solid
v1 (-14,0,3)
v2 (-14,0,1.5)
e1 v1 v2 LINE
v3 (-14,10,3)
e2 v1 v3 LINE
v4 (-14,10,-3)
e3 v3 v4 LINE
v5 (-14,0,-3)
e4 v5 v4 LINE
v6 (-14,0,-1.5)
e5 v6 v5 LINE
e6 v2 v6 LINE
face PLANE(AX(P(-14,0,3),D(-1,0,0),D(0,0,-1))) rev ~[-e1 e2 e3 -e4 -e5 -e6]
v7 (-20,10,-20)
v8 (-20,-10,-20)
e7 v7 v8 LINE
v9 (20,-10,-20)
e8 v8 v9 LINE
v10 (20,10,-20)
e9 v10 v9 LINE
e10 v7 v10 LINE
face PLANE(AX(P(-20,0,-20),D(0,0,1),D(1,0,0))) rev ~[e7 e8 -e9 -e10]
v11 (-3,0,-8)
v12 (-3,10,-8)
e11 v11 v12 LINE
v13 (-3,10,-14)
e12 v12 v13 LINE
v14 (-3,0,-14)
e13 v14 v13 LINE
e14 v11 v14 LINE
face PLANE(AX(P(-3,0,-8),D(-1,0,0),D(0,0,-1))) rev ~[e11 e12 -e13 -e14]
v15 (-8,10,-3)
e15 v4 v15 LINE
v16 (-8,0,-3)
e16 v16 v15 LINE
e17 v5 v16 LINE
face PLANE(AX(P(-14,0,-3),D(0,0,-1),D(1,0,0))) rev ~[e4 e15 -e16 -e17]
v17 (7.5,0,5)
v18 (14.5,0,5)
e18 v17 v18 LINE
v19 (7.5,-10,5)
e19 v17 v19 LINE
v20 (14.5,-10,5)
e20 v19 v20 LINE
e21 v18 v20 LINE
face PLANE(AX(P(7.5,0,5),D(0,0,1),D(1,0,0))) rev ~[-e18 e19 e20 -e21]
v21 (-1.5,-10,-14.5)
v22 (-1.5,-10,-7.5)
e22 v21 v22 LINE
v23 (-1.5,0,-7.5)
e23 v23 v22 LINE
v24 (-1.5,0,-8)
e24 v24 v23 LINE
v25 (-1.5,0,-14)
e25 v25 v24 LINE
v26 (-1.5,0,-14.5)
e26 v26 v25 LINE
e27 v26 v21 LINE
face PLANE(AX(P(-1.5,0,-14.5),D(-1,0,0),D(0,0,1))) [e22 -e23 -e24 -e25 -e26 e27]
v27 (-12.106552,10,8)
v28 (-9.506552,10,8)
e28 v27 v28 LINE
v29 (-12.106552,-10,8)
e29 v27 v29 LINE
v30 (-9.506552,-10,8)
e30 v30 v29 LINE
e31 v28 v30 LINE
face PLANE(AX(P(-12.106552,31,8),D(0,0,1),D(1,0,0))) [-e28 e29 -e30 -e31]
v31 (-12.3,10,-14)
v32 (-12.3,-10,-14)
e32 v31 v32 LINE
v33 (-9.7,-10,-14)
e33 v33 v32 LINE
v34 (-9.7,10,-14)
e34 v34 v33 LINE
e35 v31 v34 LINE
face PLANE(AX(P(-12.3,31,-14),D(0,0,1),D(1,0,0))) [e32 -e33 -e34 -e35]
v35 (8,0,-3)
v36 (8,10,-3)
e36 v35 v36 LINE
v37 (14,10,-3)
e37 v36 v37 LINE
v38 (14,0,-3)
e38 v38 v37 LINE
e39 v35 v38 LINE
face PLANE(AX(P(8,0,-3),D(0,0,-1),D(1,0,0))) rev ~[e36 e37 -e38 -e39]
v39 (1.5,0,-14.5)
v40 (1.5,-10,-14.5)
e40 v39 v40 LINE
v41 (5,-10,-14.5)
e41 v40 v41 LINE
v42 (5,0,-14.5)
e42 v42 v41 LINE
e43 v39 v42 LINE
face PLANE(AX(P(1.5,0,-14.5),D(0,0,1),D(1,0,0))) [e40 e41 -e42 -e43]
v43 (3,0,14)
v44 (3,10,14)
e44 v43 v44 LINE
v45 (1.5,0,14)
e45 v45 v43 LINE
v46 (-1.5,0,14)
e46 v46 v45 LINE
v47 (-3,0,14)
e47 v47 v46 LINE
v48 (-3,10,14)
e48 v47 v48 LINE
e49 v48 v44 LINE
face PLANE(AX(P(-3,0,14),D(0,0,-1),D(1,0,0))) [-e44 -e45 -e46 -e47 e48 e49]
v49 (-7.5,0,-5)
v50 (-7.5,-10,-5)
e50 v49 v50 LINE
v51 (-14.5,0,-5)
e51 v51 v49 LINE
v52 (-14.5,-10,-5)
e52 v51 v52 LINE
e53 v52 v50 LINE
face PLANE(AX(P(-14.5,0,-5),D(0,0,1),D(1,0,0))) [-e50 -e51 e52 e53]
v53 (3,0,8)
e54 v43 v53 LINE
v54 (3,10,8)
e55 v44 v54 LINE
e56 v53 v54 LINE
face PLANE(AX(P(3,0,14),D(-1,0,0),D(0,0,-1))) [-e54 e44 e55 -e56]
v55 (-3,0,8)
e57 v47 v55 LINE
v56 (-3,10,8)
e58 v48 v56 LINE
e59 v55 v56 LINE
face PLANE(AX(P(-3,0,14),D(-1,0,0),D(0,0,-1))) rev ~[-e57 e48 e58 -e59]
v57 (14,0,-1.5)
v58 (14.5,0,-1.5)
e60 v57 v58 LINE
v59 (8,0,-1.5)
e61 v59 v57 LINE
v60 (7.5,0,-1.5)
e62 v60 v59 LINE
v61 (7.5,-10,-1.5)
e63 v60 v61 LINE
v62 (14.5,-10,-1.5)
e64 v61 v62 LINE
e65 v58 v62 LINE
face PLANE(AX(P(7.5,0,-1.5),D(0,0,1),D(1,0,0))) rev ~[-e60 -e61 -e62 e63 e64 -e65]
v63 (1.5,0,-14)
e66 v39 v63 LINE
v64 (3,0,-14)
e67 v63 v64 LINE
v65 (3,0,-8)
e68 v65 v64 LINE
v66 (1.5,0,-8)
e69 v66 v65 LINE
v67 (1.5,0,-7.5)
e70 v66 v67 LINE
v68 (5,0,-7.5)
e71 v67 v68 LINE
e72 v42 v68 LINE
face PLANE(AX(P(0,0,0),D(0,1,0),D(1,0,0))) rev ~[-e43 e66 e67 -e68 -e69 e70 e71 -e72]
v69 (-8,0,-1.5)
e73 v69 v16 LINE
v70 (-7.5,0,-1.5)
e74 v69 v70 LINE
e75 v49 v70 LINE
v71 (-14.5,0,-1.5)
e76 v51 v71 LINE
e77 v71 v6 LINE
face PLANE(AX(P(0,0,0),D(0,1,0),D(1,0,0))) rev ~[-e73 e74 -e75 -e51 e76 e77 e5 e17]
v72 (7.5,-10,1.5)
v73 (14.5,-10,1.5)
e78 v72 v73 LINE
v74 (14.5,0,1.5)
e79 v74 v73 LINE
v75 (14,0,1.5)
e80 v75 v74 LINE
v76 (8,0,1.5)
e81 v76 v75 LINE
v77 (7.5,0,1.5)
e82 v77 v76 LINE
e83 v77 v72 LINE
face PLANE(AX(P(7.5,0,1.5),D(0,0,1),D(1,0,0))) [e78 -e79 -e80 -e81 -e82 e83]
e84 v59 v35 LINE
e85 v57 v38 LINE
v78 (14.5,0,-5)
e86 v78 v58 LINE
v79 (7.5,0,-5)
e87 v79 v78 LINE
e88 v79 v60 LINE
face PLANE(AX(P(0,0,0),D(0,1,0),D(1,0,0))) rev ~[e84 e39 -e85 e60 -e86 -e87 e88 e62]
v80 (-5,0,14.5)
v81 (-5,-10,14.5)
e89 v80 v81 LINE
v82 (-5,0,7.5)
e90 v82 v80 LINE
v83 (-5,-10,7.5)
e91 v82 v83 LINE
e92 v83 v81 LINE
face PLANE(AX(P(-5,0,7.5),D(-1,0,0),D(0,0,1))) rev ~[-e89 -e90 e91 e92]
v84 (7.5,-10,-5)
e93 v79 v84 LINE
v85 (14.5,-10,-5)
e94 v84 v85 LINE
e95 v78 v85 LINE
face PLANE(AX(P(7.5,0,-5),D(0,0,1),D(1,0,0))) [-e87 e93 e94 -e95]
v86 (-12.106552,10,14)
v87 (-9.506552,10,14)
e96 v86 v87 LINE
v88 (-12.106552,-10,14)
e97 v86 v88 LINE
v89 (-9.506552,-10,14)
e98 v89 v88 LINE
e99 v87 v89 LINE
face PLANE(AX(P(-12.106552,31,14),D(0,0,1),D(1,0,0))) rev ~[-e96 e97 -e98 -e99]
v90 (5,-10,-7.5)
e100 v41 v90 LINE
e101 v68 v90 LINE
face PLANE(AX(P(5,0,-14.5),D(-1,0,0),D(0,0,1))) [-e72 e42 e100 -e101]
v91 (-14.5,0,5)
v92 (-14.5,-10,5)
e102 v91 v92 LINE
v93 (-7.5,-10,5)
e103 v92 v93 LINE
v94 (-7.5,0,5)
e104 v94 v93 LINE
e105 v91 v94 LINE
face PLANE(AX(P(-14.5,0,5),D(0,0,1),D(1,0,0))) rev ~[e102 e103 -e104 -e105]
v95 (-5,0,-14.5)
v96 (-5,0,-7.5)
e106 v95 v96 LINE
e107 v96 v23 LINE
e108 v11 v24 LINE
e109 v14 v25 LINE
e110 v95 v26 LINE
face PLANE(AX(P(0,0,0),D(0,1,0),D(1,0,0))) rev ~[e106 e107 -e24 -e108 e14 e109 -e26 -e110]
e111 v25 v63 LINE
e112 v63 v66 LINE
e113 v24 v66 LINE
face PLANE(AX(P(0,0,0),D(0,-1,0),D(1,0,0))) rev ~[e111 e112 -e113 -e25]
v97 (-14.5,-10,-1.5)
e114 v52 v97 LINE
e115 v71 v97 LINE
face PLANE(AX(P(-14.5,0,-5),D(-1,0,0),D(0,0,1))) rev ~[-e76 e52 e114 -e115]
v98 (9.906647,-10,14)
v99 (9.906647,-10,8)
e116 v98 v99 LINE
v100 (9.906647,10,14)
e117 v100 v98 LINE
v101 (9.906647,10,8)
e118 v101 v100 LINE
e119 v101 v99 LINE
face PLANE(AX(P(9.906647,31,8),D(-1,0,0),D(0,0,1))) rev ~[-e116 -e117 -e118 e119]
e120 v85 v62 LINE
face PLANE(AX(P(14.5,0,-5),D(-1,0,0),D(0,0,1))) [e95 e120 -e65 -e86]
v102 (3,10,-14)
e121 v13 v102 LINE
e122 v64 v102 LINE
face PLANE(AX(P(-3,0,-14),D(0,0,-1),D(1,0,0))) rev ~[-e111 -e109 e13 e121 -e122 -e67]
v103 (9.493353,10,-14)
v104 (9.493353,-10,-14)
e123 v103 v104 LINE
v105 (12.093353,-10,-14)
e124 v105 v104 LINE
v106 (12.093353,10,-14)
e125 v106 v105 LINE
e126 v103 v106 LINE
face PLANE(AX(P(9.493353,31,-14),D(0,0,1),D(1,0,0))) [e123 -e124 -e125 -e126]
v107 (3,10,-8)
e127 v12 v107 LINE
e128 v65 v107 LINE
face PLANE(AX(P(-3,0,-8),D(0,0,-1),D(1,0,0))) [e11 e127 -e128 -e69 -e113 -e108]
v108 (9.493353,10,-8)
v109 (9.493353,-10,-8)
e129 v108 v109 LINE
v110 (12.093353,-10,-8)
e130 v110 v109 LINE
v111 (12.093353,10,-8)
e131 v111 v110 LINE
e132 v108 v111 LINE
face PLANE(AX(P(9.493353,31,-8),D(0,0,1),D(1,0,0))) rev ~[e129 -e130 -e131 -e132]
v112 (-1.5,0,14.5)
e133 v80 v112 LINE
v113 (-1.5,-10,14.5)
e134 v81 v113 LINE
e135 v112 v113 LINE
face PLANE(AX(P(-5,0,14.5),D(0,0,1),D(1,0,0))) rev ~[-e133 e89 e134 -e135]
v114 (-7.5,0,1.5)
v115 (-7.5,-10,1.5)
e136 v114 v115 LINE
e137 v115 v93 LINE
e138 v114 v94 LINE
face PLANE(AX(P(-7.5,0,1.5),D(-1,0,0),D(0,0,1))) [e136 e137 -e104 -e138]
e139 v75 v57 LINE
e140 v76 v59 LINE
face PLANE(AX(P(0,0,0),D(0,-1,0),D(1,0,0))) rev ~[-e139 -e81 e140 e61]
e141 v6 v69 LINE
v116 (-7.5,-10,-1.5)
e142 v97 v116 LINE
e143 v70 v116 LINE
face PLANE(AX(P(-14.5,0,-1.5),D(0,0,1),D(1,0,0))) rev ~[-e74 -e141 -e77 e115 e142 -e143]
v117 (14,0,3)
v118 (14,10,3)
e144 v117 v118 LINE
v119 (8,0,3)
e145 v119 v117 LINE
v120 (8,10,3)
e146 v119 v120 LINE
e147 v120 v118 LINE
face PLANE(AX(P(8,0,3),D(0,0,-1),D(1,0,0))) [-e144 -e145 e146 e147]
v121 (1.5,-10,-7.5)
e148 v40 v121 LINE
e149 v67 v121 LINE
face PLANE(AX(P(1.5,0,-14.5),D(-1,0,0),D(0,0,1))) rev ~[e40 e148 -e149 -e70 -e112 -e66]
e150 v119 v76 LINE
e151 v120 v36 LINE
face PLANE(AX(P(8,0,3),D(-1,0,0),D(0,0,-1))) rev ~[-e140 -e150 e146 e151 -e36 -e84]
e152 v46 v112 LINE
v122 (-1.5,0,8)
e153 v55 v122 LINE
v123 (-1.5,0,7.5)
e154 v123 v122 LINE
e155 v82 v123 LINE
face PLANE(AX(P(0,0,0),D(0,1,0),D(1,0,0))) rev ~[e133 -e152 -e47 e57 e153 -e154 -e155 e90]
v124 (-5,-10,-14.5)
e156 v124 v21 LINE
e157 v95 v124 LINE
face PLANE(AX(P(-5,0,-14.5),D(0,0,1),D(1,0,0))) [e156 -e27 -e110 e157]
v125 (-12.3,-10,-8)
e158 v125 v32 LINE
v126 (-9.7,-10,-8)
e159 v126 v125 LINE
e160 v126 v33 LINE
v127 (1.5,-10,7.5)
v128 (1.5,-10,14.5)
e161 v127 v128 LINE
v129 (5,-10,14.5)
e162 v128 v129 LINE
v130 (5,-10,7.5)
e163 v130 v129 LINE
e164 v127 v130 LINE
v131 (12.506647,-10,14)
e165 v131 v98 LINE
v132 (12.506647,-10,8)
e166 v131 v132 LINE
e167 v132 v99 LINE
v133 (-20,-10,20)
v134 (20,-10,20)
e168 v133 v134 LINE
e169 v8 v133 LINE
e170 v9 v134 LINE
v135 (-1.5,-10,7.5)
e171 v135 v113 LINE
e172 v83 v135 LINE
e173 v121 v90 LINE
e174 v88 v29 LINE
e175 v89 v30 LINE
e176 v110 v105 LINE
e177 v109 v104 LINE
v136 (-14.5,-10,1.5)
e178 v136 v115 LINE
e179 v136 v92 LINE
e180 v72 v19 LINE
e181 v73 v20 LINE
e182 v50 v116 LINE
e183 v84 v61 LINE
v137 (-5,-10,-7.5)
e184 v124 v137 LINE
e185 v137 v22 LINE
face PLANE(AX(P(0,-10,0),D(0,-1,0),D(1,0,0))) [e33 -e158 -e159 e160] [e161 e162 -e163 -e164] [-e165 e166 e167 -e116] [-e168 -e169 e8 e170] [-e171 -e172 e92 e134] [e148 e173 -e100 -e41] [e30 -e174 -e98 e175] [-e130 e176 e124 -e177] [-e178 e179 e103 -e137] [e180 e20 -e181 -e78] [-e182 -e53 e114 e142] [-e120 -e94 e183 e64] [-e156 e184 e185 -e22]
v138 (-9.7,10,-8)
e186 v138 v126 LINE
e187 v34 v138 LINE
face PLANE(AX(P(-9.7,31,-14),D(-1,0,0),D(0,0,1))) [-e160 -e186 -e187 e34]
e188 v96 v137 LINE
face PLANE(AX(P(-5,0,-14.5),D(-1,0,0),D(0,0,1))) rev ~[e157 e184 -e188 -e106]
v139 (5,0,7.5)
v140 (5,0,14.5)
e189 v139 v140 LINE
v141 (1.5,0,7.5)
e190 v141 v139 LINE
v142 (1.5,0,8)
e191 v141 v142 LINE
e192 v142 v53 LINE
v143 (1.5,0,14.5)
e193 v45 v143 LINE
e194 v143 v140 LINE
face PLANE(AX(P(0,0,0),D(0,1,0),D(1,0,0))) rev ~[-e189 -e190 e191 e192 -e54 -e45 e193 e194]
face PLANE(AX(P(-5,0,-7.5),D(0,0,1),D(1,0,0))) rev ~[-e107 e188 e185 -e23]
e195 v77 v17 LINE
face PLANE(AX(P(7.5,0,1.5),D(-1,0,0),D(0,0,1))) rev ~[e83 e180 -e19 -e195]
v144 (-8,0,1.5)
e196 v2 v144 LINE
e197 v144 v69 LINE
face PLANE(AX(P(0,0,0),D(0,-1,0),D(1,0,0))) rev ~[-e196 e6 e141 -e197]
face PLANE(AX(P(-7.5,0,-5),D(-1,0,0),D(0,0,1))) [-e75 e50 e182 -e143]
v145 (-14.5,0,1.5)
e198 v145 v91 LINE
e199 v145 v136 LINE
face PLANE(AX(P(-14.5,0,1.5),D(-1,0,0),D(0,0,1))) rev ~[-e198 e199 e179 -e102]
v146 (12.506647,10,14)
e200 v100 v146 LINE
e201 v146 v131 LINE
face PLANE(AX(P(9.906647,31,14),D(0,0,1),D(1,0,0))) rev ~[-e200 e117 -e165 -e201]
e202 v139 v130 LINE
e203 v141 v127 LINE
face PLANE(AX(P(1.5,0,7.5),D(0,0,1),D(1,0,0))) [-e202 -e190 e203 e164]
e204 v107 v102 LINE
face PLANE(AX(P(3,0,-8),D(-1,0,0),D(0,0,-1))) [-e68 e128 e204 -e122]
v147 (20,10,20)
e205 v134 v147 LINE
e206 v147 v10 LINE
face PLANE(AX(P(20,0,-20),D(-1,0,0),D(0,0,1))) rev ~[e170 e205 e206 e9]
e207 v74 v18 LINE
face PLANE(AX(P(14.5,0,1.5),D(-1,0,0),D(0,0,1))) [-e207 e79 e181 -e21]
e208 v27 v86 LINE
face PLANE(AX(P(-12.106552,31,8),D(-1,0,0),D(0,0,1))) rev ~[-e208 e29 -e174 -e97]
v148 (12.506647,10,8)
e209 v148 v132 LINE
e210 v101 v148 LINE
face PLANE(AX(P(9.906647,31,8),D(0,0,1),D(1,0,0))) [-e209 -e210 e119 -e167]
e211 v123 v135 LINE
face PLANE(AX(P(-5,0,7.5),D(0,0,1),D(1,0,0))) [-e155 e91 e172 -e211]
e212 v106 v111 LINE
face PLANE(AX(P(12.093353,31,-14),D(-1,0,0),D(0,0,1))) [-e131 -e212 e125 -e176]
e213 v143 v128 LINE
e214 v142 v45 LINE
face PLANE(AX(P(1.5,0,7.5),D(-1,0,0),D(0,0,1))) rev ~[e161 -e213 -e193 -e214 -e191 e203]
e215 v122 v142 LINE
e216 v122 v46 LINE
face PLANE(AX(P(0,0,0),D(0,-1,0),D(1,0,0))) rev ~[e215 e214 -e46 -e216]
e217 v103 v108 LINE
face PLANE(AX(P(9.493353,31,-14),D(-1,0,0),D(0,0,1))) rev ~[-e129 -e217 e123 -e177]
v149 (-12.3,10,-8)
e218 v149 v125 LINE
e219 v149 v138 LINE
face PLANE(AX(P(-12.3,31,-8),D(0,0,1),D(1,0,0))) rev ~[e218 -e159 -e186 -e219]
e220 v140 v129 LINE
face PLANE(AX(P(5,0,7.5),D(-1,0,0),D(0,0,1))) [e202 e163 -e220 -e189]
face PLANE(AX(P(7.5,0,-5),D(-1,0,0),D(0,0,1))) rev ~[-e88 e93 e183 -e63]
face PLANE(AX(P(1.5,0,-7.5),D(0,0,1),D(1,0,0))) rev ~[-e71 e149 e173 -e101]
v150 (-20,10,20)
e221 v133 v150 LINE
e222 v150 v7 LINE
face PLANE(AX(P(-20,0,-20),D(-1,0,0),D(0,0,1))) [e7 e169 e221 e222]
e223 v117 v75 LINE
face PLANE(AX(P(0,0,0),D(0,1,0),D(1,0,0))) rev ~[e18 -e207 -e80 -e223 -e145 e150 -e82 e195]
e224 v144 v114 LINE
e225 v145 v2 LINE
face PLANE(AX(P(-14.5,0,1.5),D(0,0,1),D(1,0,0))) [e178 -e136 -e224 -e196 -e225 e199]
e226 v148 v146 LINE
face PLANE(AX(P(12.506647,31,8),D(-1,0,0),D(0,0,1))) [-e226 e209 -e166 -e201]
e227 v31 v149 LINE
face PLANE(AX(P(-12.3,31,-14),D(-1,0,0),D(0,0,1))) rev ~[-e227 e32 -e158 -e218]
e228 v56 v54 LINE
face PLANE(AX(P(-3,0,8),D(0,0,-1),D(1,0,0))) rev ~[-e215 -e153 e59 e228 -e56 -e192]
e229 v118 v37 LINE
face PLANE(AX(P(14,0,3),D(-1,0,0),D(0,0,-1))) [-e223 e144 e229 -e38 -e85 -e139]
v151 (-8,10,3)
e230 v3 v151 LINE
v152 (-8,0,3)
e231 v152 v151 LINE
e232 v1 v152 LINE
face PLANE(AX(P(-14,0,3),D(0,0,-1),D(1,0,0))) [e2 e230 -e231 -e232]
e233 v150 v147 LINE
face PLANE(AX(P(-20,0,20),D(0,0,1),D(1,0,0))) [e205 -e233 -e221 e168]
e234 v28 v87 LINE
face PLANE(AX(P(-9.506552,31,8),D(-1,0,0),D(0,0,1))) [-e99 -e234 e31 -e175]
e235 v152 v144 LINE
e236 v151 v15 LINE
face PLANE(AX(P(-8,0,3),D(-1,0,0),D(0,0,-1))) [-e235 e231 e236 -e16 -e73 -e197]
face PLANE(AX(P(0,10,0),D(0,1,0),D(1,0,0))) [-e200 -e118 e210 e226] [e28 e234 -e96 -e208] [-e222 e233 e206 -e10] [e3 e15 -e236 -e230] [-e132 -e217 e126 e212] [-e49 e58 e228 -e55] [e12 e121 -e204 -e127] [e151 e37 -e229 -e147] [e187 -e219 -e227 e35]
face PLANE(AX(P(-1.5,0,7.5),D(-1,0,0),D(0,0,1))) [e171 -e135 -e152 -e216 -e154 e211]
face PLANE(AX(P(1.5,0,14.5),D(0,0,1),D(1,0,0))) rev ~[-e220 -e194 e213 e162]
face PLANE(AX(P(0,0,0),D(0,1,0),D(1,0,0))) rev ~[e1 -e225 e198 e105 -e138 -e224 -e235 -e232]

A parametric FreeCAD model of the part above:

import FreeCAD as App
import Part
import Sketcher

V = App.Vector

doc = App.newDocument("Part")
params = doc.addObject("Spreadsheet::Sheet", "Params")
for row, (alias, value) in enumerate([
    ("sketch1_width", "40 mm"),
    ("sketch1_width2", "6 mm"),
    ("pad1_length", "10 mm"),
    ("sketch2_width", "40 mm"),
    ("sketch2_width2", "7 mm"),
    ("sketch2_width3", "3.5 mm"),
    ("pad2_length", "10 mm"),
    ("sketch3_height", "6 mm"),
    ("sketch3_width", "2.6 mm"),
    ("sketch4_height", "6 mm"),
    ("sketch4_width", "2.6 mm"),
    ("sketch5_height", "6 mm"),
    ("sketch5_width", "2.6 mm"),
    ("sketch6_height", "6 mm"),
    ("sketch6_width", "2.6 mm"),
], start=1):
    params.set(f"A{row}", alias)
    params.set(f"B{row}", "=" + value)
    params.setAlias(f"B{row}", alias)

body = doc.addObject("PartDesign::Body", "Body")

# Sketch on XZ plane
sketch1 = body.newObject("Sketcher::SketchObject", "Sketch")
sketch1.AttachmentSupport = (doc.getObject("XZ_Plane"), [""])
sketch1.MapMode = "FlatFace"
sketch1.addGeometry(Part.LineSegment(V(-20, -20, 0), V(-20, 20, 0)), False)
sketch1.addGeometry(Part.LineSegment(V(-20, 20, 0), V(20, 20, 0)), False)
sketch1.addGeometry(Part.LineSegment(V(20, 20, 0), V(20, -20, 0)), False)
sketch1.addGeometry(Part.LineSegment(V(20, -20, 0), V(-20, -20, 0)), False)
sketch1.addGeometry(Part.LineSegment(V(3, 14, 0), V(-3, 14, 0)), False)
sketch1.addGeometry(Part.LineSegment(V(-3, 14, 0), V(-3, 8, 0)), False)
sketch1.addGeometry(Part.LineSegment(V(-3, 8, 0), V(3, 8, 0)), False)
sketch1.addGeometry(Part.LineSegment(V(3, 8, 0), V(3, 14, 0)), False)
sketch1.addGeometry(Part.LineSegment(V(-8, 3, 0), V(-14, 3, 0)), False)
sketch1.addGeometry(Part.LineSegment(V(-14, 3, 0), V(-14, -3, 0)), False)
sketch1.addGeometry(Part.LineSegment(V(-14, -3, 0), V(-8, -3, 0)), False)
sketch1.addGeometry(Part.LineSegment(V(-8, -3, 0), V(-8, 3, 0)), False)
sketch1.addGeometry(Part.LineSegment(V(14, 3, 0), V(8, 3, 0)), False)
sketch1.addGeometry(Part.LineSegment(V(8, 3, 0), V(8, -3, 0)), False)
sketch1.addGeometry(Part.LineSegment(V(8, -3, 0), V(14, -3, 0)), False)
sketch1.addGeometry(Part.LineSegment(V(14, -3, 0), V(14, 3, 0)), False)
sketch1.addGeometry(Part.LineSegment(V(3, -8, 0), V(-3, -8, 0)), False)
sketch1.addGeometry(Part.LineSegment(V(-3, -8, 0), V(-3, -14, 0)), False)
sketch1.addGeometry(Part.LineSegment(V(-3, -14, 0), V(3, -14, 0)), False)
sketch1.addGeometry(Part.LineSegment(V(3, -14, 0), V(3, -8, 0)), False)
sketch1.addConstraint(Sketcher.Constraint("Coincident", 0, 2, 1, 1))
sketch1.addConstraint(Sketcher.Constraint("Coincident", 1, 2, 2, 1))
sketch1.addConstraint(Sketcher.Constraint("Coincident", 2, 2, 3, 1))
sketch1.addConstraint(Sketcher.Constraint("Coincident", 3, 2, 0, 1))
sketch1.addConstraint(Sketcher.Constraint("Coincident", 4, 2, 5, 1))
sketch1.addConstraint(Sketcher.Constraint("Coincident", 5, 2, 6, 1))
sketch1.addConstraint(Sketcher.Constraint("Coincident", 6, 2, 7, 1))
sketch1.addConstraint(Sketcher.Constraint("Coincident", 7, 2, 4, 1))
sketch1.addConstraint(Sketcher.Constraint("Coincident", 8, 2, 9, 1))
sketch1.addConstraint(Sketcher.Constraint("Coincident", 9, 2, 10, 1))
sketch1.addConstraint(Sketcher.Constraint("Coincident", 10, 2, 11, 1))
sketch1.addConstraint(Sketcher.Constraint("Coincident", 11, 2, 8, 1))
sketch1.addConstraint(Sketcher.Constraint("Coincident", 12, 2, 13, 1))
sketch1.addConstraint(Sketcher.Constraint("Coincident", 13, 2, 14, 1))
sketch1.addConstraint(Sketcher.Constraint("Coincident", 14, 2, 15, 1))
sketch1.addConstraint(Sketcher.Constraint("Coincident", 15, 2, 12, 1))
sketch1.addConstraint(Sketcher.Constraint("Coincident", 16, 2, 17, 1))
sketch1.addConstraint(Sketcher.Constraint("Coincident", 17, 2, 18, 1))
sketch1.addConstraint(Sketcher.Constraint("Coincident", 18, 2, 19, 1))
sketch1.addConstraint(Sketcher.Constraint("Coincident", 19, 2, 16, 1))
sketch1.addConstraint(Sketcher.Constraint("Vertical", 0))
sketch1.addConstraint(Sketcher.Constraint("Horizontal", 1))
sketch1.addConstraint(Sketcher.Constraint("Vertical", 2))
sketch1.addConstraint(Sketcher.Constraint("Horizontal", 3))
sketch1.addConstraint(Sketcher.Constraint("Horizontal", 4))
sketch1.addConstraint(Sketcher.Constraint("Vertical", 5))
sketch1.addConstraint(Sketcher.Constraint("Horizontal", 6))
sketch1.addConstraint(Sketcher.Constraint("Vertical", 7))
sketch1.addConstraint(Sketcher.Constraint("Horizontal", 8))
sketch1.addConstraint(Sketcher.Constraint("Vertical", 9))
sketch1.addConstraint(Sketcher.Constraint("Horizontal", 10))
sketch1.addConstraint(Sketcher.Constraint("Vertical", 11))
sketch1.addConstraint(Sketcher.Constraint("Horizontal", 12))
sketch1.addConstraint(Sketcher.Constraint("Vertical", 13))
sketch1.addConstraint(Sketcher.Constraint("Horizontal", 14))
sketch1.addConstraint(Sketcher.Constraint("Vertical", 15))
sketch1.addConstraint(Sketcher.Constraint("Horizontal", 16))
sketch1.addConstraint(Sketcher.Constraint("Vertical", 17))
sketch1.addConstraint(Sketcher.Constraint("Horizontal", 18))
sketch1.addConstraint(Sketcher.Constraint("Vertical", 19))
sketch1.addConstraint(Sketcher.Constraint("Symmetric", 0, 2, 2, 2, -1, 1))
sketch1.addConstraint(Sketcher.Constraint("Symmetric", 10, 2, 12, 2, -1, 1))
sketch1.addConstraint(Sketcher.Constraint("Symmetric", 8, 2, 14, 2, -1, 1))
sketch1.addConstraint(Sketcher.Constraint("Symmetric", 6, 2, 16, 2, -1, 1))
sketch1.addConstraint(Sketcher.Constraint("Symmetric", 4, 2, 18, 2, -1, 1))
sketch1.addConstraint(Sketcher.Constraint("Horizontal", 11, 2, 12, 2))
sketch1.addConstraint(Sketcher.Constraint("Vertical", 5, 2, 16, 2))
sketch1.addConstraint(Sketcher.Constraint("Equal", 6, 8))
sketch1.addConstraint(Sketcher.Constraint("Equal", 3, 0))
sketch1.addConstraint(Sketcher.Constraint("Equal", 18, 5))
sketch1.addConstraint(Sketcher.Constraint("Equal", 7, 9))
sketch1.addConstraint(Sketcher.Constraint("DistanceX", 1, 1, 1, 2, 40.0))
sketch1.addConstraint(Sketcher.Constraint("DistanceX", 4, 2, 4, 1, 6.0))
sketch1.addConstraint(Sketcher.Constraint("DistanceY", -1, 1, 4, 2, 14.0))
sketch1.addConstraint(Sketcher.Constraint("DistanceX", 8, 2, -1, 1, 14.0))
sketch1.setExpression("Constraints[51]", "Params.sketch1_width")
sketch1.setExpression("Constraints[52]", "Params.sketch1_width2")
pad1 = body.newObject("PartDesign::Pad", "Pad")
pad1.Profile = sketch1
pad1.setExpression("Length", "Params.pad1_length")
pad1.Reversed = True

# Sketch on XZ plane
sketch2 = body.newObject("Sketcher::SketchObject", "Sketch001")
sketch2.AttachmentSupport = (doc.getObject("XZ_Plane"), [""])
sketch2.MapMode = "FlatFace"
sketch2.addGeometry(Part.LineSegment(V(-20, 20, 0), V(-20, -20, 0)), False)
sketch2.addGeometry(Part.LineSegment(V(-20, -20, 0), V(20, -20, 0)), False)
sketch2.addGeometry(Part.LineSegment(V(20, -20, 0), V(20, 20, 0)), False)
sketch2.addGeometry(Part.LineSegment(V(20, 20, 0), V(-20, 20, 0)), False)
sketch2.addGeometry(Part.LineSegment(V(-1.5, -14.5, 0), V(-5, -14.5, 0)), False)
sketch2.addGeometry(Part.LineSegment(V(-5, -14.5, 0), V(-5, -7.5, 0)), False)
sketch2.addGeometry(Part.LineSegment(V(-5, -7.5, 0), V(-1.5, -7.5, 0)), False)
sketch2.addGeometry(Part.LineSegment(V(-1.5, -7.5, 0), V(-1.5, -14.5, 0)), False)
sketch2.addGeometry(Part.LineSegment(V(-7.5, -5, 0), V(-14.5, -5, 0)), False)
sketch2.addGeometry(Part.LineSegment(V(-14.5, -5, 0), V(-14.5, -1.5, 0)), False)
sketch2.addGeometry(Part.LineSegment(V(-14.5, -1.5, 0), V(-7.5, -1.5, 0)), False)
sketch2.addGeometry(Part.LineSegment(V(-7.5, -1.5, 0), V(-7.5, -5, 0)), False)
sketch2.addGeometry(Part.LineSegment(V(5, -14.5, 0), V(1.5, -14.5, 0)), False)
sketch2.addGeometry(Part.LineSegment(V(1.5, -14.5, 0), V(1.5, -7.5, 0)), False)
sketch2.addGeometry(Part.LineSegment(V(1.5, -7.5, 0), V(5, -7.5, 0)), False)
sketch2.addGeometry(Part.LineSegment(V(5, -7.5, 0), V(5, -14.5, 0)), False)
sketch2.addGeometry(Part.LineSegment(V(14.5, -5, 0), V(7.5, -5, 0)), False)
sketch2.addGeometry(Part.LineSegment(V(7.5, -5, 0), V(7.5, -1.5, 0)), False)
sketch2.addGeometry(Part.LineSegment(V(7.5, -1.5, 0), V(14.5, -1.5, 0)), False)
sketch2.addGeometry(Part.LineSegment(V(14.5, -1.5, 0), V(14.5, -5, 0)), False)
sketch2.addGeometry(Part.LineSegment(V(-7.5, 1.5, 0), V(-14.5, 1.5, 0)), False)
sketch2.addGeometry(Part.LineSegment(V(-14.5, 1.5, 0), V(-14.5, 5, 0)), False)
sketch2.addGeometry(Part.LineSegment(V(-14.5, 5, 0), V(-7.5, 5, 0)), False)
sketch2.addGeometry(Part.LineSegment(V(-7.5, 5, 0), V(-7.5, 1.5, 0)), False)
sketch2.addGeometry(Part.LineSegment(V(-1.5, 7.5, 0), V(-5, 7.5, 0)), False)
sketch2.addGeometry(Part.LineSegment(V(-5, 7.5, 0), V(-5, 14.5, 0)), False)
sketch2.addGeometry(Part.LineSegment(V(-5, 14.5, 0), V(-1.5, 14.5, 0)), False)
sketch2.addGeometry(Part.LineSegment(V(-1.5, 14.5, 0), V(-1.5, 7.5, 0)), False)
sketch2.addGeometry(Part.LineSegment(V(14.5, 1.5, 0), V(7.5, 1.5, 0)), False)
sketch2.addGeometry(Part.LineSegment(V(7.5, 1.5, 0), V(7.5, 5, 0)), False)
sketch2.addGeometry(Part.LineSegment(V(7.5, 5, 0), V(14.5, 5, 0)), False)
sketch2.addGeometry(Part.LineSegment(V(14.5, 5, 0), V(14.5, 1.5, 0)), False)
sketch2.addGeometry(Part.LineSegment(V(5, 7.5, 0), V(1.5, 7.5, 0)), False)
sketch2.addGeometry(Part.LineSegment(V(1.5, 7.5, 0), V(1.5, 14.5, 0)), False)
sketch2.addGeometry(Part.LineSegment(V(1.5, 14.5, 0), V(5, 14.5, 0)), False)
sketch2.addGeometry(Part.LineSegment(V(5, 14.5, 0), V(5, 7.5, 0)), False)
sketch2.addConstraint(Sketcher.Constraint("Coincident", 0, 2, 1, 1))
sketch2.addConstraint(Sketcher.Constraint("Coincident", 1, 2, 2, 1))
sketch2.addConstraint(Sketcher.Constraint("Coincident", 2, 2, 3, 1))
sketch2.addConstraint(Sketcher.Constraint("Coincident", 3, 2, 0, 1))
sketch2.addConstraint(Sketcher.Constraint("Coincident", 4, 2, 5, 1))
sketch2.addConstraint(Sketcher.Constraint("Coincident", 5, 2, 6, 1))
sketch2.addConstraint(Sketcher.Constraint("Coincident", 6, 2, 7, 1))
sketch2.addConstraint(Sketcher.Constraint("Coincident", 7, 2, 4, 1))
sketch2.addConstraint(Sketcher.Constraint("Coincident", 8, 2, 9, 1))
sketch2.addConstraint(Sketcher.Constraint("Coincident", 9, 2, 10, 1))
sketch2.addConstraint(Sketcher.Constraint("Coincident", 10, 2, 11, 1))
sketch2.addConstraint(Sketcher.Constraint("Coincident", 11, 2, 8, 1))
sketch2.addConstraint(Sketcher.Constraint("Coincident", 12, 2, 13, 1))
sketch2.addConstraint(Sketcher.Constraint("Coincident", 13, 2, 14, 1))
sketch2.addConstraint(Sketcher.Constraint("Coincident", 14, 2, 15, 1))
sketch2.addConstraint(Sketcher.Constraint("Coincident", 15, 2, 12, 1))
sketch2.addConstraint(Sketcher.Constraint("Coincident", 16, 2, 17, 1))
sketch2.addConstraint(Sketcher.Constraint("Coincident", 17, 2, 18, 1))
sketch2.addConstraint(Sketcher.Constraint("Coincident", 18, 2, 19, 1))
sketch2.addConstraint(Sketcher.Constraint("Coincident", 19, 2, 16, 1))
sketch2.addConstraint(Sketcher.Constraint("Coincident", 20, 2, 21, 1))
sketch2.addConstraint(Sketcher.Constraint("Coincident", 21, 2, 22, 1))
sketch2.addConstraint(Sketcher.Constraint("Coincident", 22, 2, 23, 1))
sketch2.addConstraint(Sketcher.Constraint("Coincident", 23, 2, 20, 1))
sketch2.addConstraint(Sketcher.Constraint("Coincident", 24, 2, 25, 1))
sketch2.addConstraint(Sketcher.Constraint("Coincident", 25, 2, 26, 1))
sketch2.addConstraint(Sketcher.Constraint("Coincident", 26, 2, 27, 1))
sketch2.addConstraint(Sketcher.Constraint("Coincident", 27, 2, 24, 1))
sketch2.addConstraint(Sketcher.Constraint("Coincident", 28, 2, 29, 1))
sketch2.addConstraint(Sketcher.Constraint("Coincident", 29, 2, 30, 1))
sketch2.addConstraint(Sketcher.Constraint("Coincident", 30, 2, 31, 1))
sketch2.addConstraint(Sketcher.Constraint("Coincident", 31, 2, 28, 1))
sketch2.addConstraint(Sketcher.Constraint("Coincident", 32, 2, 33, 1))
sketch2.addConstraint(Sketcher.Constraint("Coincident", 33, 2, 34, 1))
sketch2.addConstraint(Sketcher.Constraint("Coincident", 34, 2, 35, 1))
sketch2.addConstraint(Sketcher.Constraint("Coincident", 35, 2, 32, 1))
sketch2.addConstraint(Sketcher.Constraint("Vertical", 0))
sketch2.addConstraint(Sketcher.Constraint("Horizontal", 1))
sketch2.addConstraint(Sketcher.Constraint("Vertical", 2))
sketch2.addConstraint(Sketcher.Constraint("Horizontal", 3))
sketch2.addConstraint(Sketcher.Constraint("Horizontal", 4))
sketch2.addConstraint(Sketcher.Constraint("Vertical", 5))
sketch2.addConstraint(Sketcher.Constraint("Horizontal", 6))
sketch2.addConstraint(Sketcher.Constraint("Vertical", 7))
sketch2.addConstraint(Sketcher.Constraint("Horizontal", 8))
sketch2.addConstraint(Sketcher.Constraint("Vertical", 9))
sketch2.addConstraint(Sketcher.Constraint("Horizontal", 10))
sketch2.addConstraint(Sketcher.Constraint("Vertical", 11))
sketch2.addConstraint(Sketcher.Constraint("Horizontal", 12))
sketch2.addConstraint(Sketcher.Constraint("Vertical", 13))
sketch2.addConstraint(Sketcher.Constraint("Horizontal", 14))
sketch2.addConstraint(Sketcher.Constraint("Vertical", 15))
sketch2.addConstraint(Sketcher.Constraint("Horizontal", 16))
sketch2.addConstraint(Sketcher.Constraint("Vertical", 17))
sketch2.addConstraint(Sketcher.Constraint("Horizontal", 18))
sketch2.addConstraint(Sketcher.Constraint("Vertical", 19))
sketch2.addConstraint(Sketcher.Constraint("Horizontal", 20))
sketch2.addConstraint(Sketcher.Constraint("Vertical", 21))
sketch2.addConstraint(Sketcher.Constraint("Horizontal", 22))
sketch2.addConstraint(Sketcher.Constraint("Vertical", 23))
sketch2.addConstraint(Sketcher.Constraint("Horizontal", 24))
sketch2.addConstraint(Sketcher.Constraint("Vertical", 25))
sketch2.addConstraint(Sketcher.Constraint("Horizontal", 26))
sketch2.addConstraint(Sketcher.Constraint("Vertical", 27))
sketch2.addConstraint(Sketcher.Constraint("Horizontal", 28))
sketch2.addConstraint(Sketcher.Constraint("Vertical", 29))
sketch2.addConstraint(Sketcher.Constraint("Horizontal", 30))
sketch2.addConstraint(Sketcher.Constraint("Vertical", 31))
sketch2.addConstraint(Sketcher.Constraint("Horizontal", 32))
sketch2.addConstraint(Sketcher.Constraint("Vertical", 33))
sketch2.addConstraint(Sketcher.Constraint("Horizontal", 34))
sketch2.addConstraint(Sketcher.Constraint("Vertical", 35))
sketch2.addConstraint(Sketcher.Constraint("Symmetric", 0, 2, 2, 2, -1, 1))
sketch2.addConstraint(Sketcher.Constraint("Symmetric", 18, 2, 20, 2, -1, 1))
sketch2.addConstraint(Sketcher.Constraint("Symmetric", 16, 2, 22, 2, -1, 1))
sketch2.addConstraint(Sketcher.Constraint("Symmetric", 14, 2, 24, 2, -1, 1))
sketch2.addConstraint(Sketcher.Constraint("Symmetric", 12, 2, 26, 2, -1, 1))
sketch2.addConstraint(Sketcher.Constraint("Symmetric", 10, 2, 28, 2, -1, 1))
sketch2.addConstraint(Sketcher.Constraint("Symmetric", 8, 2, 30, 2, -1, 1))
sketch2.addConstraint(Sketcher.Constraint("Symmetric", 6, 2, 32, 2, -1, 1))
sketch2.addConstraint(Sketcher.Constraint("Symmetric", 4, 2, 34, 2, -1, 1))
sketch2.addConstraint(Sketcher.Constraint("Symmetric", 7, 2, 12, 2, -2))
sketch2.addConstraint(Sketcher.Constraint("Symmetric", 5, 2, 14, 2, -2))
sketch2.addConstraint(Sketcher.Constraint("Symmetric", 11, 2, 16, 2, -2))
sketch2.addConstraint(Sketcher.Constraint("Symmetric", 9, 2, 18, 2, -2))
sketch2.addConstraint(Sketcher.Constraint("Equal", 3, 0))
sketch2.addConstraint(Sketcher.Constraint("Equal", 30, 5))
sketch2.addConstraint(Sketcher.Constraint("Equal", 34, 9))
sketch2.addConstraint(Sketcher.Constraint("DistanceX", 1, 1, 1, 2, 40.0))
sketch2.addConstraint(Sketcher.Constraint("DistanceX", 8, 2, 8, 1, 7.0))
sketch2.addConstraint(Sketcher.Constraint("DistanceX", 4, 2, 4, 1, 3.5))
sketch2.addConstraint(Sketcher.Constraint("DistanceX", 4, 2, -1, 1, 5.0))
sketch2.addConstraint(Sketcher.Constraint("DistanceY", 8, 2, -1, 1, 5.0))
sketch2.addConstraint(Sketcher.Constraint("DistanceX", 8, 2, 6, 2, 13.0))
sketch2.addConstraint(Sketcher.Constraint("DistanceY", 5, 2, 9, 2, 6.0))
sketch2.setExpression("Constraints[88]", "Params.sketch2_width")
sketch2.setExpression("Constraints[89]", "Params.sketch2_width2")
sketch2.setExpression("Constraints[90]", "Params.sketch2_width3")
pad2 = body.newObject("PartDesign::Pad", "Pad001")
pad2.Profile = sketch2
pad2.setExpression("Length", "Params.pad2_length")

# Sketch on XZ plane
sketch3 = body.newObject("Sketcher::SketchObject", "Sketch002")
sketch3.AttachmentSupport = (doc.getObject("XZ_Plane"), [""])
sketch3.MapMode = "FlatFace"
sketch3.addGeometry(Part.LineSegment(V(-12.106552, 14, 0), V(-12.106552, 8, 0)), False)
sketch3.addGeometry(Part.LineSegment(V(-12.106552, 8, 0), V(-9.506552, 8, 0)), False)
sketch3.addGeometry(Part.LineSegment(V(-9.506552, 8, 0), V(-9.506552, 14, 0)), False)
sketch3.addGeometry(Part.LineSegment(V(-9.506552, 14, 0), V(-12.106552, 14, 0)), False)
sketch3.addConstraint(Sketcher.Constraint("Coincident", 0, 2, 1, 1))
sketch3.addConstraint(Sketcher.Constraint("Coincident", 1, 2, 2, 1))
sketch3.addConstraint(Sketcher.Constraint("Coincident", 2, 2, 3, 1))
sketch3.addConstraint(Sketcher.Constraint("Coincident", 3, 2, 0, 1))
sketch3.addConstraint(Sketcher.Constraint("Vertical", 0))
sketch3.addConstraint(Sketcher.Constraint("Horizontal", 1))
sketch3.addConstraint(Sketcher.Constraint("Vertical", 2))
sketch3.addConstraint(Sketcher.Constraint("Horizontal", 3))
sketch3.addConstraint(Sketcher.Constraint("DistanceY", 0, 2, 0, 1, 6.0))
sketch3.addConstraint(Sketcher.Constraint("DistanceX", 1, 1, 1, 2, 2.6))
sketch3.addConstraint(Sketcher.Constraint("DistanceY", -1, 1, 0, 2, 8.0))
sketch3.addConstraint(Sketcher.Constraint("DistanceX", 0, 2, -1, 1, 12.106552))
sketch3.setExpression("Constraints[8]", "Params.sketch3_height")
sketch3.setExpression("Constraints[9]", "Params.sketch3_width")
pocket1 = body.newObject("PartDesign::Pocket", "Pocket")
pocket1.Profile = sketch3
pocket1.Type = "ThroughAll"
pocket1.Midplane = True

# Sketch on XZ plane
sketch4 = body.newObject("Sketcher::SketchObject", "Sketch003")
sketch4.AttachmentSupport = (doc.getObject("XZ_Plane"), [""])
sketch4.MapMode = "FlatFace"
sketch4.addGeometry(Part.LineSegment(V(9.906647, 14, 0), V(9.906647, 8, 0)), False)
sketch4.addGeometry(Part.LineSegment(V(9.906647, 8, 0), V(12.506647, 8, 0)), False)
sketch4.addGeometry(Part.LineSegment(V(12.506647, 8, 0), V(12.506647, 14, 0)), False)
sketch4.addGeometry(Part.LineSegment(V(12.506647, 14, 0), V(9.906647, 14, 0)), False)
sketch4.addConstraint(Sketcher.Constraint("Coincident", 0, 2, 1, 1))
sketch4.addConstraint(Sketcher.Constraint("Coincident", 1, 2, 2, 1))
sketch4.addConstraint(Sketcher.Constraint("Coincident", 2, 2, 3, 1))
sketch4.addConstraint(Sketcher.Constraint("Coincident", 3, 2, 0, 1))
sketch4.addConstraint(Sketcher.Constraint("Vertical", 0))
sketch4.addConstraint(Sketcher.Constraint("Horizontal", 1))
sketch4.addConstraint(Sketcher.Constraint("Vertical", 2))
sketch4.addConstraint(Sketcher.Constraint("Horizontal", 3))
sketch4.addConstraint(Sketcher.Constraint("DistanceY", 0, 2, 0, 1, 6.0))
sketch4.addConstraint(Sketcher.Constraint("DistanceX", 1, 1, 1, 2, 2.6))
sketch4.addConstraint(Sketcher.Constraint("DistanceY", -1, 1, 0, 2, 8.0))
sketch4.addConstraint(Sketcher.Constraint("DistanceX", -1, 1, 0, 2, 9.906647))
sketch4.setExpression("Constraints[8]", "Params.sketch4_height")
sketch4.setExpression("Constraints[9]", "Params.sketch4_width")
pocket2 = body.newObject("PartDesign::Pocket", "Pocket001")
pocket2.Profile = sketch4
pocket2.Type = "ThroughAll"
pocket2.Midplane = True

# Sketch on XZ plane
sketch5 = body.newObject("Sketcher::SketchObject", "Sketch004")
sketch5.AttachmentSupport = (doc.getObject("XZ_Plane"), [""])
sketch5.MapMode = "FlatFace"
sketch5.addGeometry(Part.LineSegment(V(9.493353, -8, 0), V(9.493353, -14, 0)), False)
sketch5.addGeometry(Part.LineSegment(V(9.493353, -14, 0), V(12.093353, -14, 0)), False)
sketch5.addGeometry(Part.LineSegment(V(12.093353, -14, 0), V(12.093353, -8, 0)), False)
sketch5.addGeometry(Part.LineSegment(V(12.093353, -8, 0), V(9.493353, -8, 0)), False)
sketch5.addConstraint(Sketcher.Constraint("Coincident", 0, 2, 1, 1))
sketch5.addConstraint(Sketcher.Constraint("Coincident", 1, 2, 2, 1))
sketch5.addConstraint(Sketcher.Constraint("Coincident", 2, 2, 3, 1))
sketch5.addConstraint(Sketcher.Constraint("Coincident", 3, 2, 0, 1))
sketch5.addConstraint(Sketcher.Constraint("Vertical", 0))
sketch5.addConstraint(Sketcher.Constraint("Horizontal", 1))
sketch5.addConstraint(Sketcher.Constraint("Vertical", 2))
sketch5.addConstraint(Sketcher.Constraint("Horizontal", 3))
sketch5.addConstraint(Sketcher.Constraint("DistanceY", 0, 2, 0, 1, 6.0))
sketch5.addConstraint(Sketcher.Constraint("DistanceX", 1, 1, 1, 2, 2.6))
sketch5.addConstraint(Sketcher.Constraint("DistanceY", 0, 2, -1, 1, 14.0))
sketch5.addConstraint(Sketcher.Constraint("DistanceX", -1, 1, 0, 2, 9.493353))
sketch5.setExpression("Constraints[8]", "Params.sketch5_height")
sketch5.setExpression("Constraints[9]", "Params.sketch5_width")
pocket3 = body.newObject("PartDesign::Pocket", "Pocket002")
pocket3.Profile = sketch5
pocket3.Type = "ThroughAll"
pocket3.Midplane = True

# Sketch on XZ plane
sketch6 = body.newObject("Sketcher::SketchObject", "Sketch005")
sketch6.AttachmentSupport = (doc.getObject("XZ_Plane"), [""])
sketch6.MapMode = "FlatFace"
sketch6.addGeometry(Part.LineSegment(V(-12.3, -8, 0), V(-12.3, -14, 0)), False)
sketch6.addGeometry(Part.LineSegment(V(-12.3, -14, 0), V(-9.7, -14, 0)), False)
sketch6.addGeometry(Part.LineSegment(V(-9.7, -14, 0), V(-9.7, -8, 0)), False)
sketch6.addGeometry(Part.LineSegment(V(-9.7, -8, 0), V(-12.3, -8, 0)), False)
sketch6.addConstraint(Sketcher.Constraint("Coincident", 0, 2, 1, 1))
sketch6.addConstraint(Sketcher.Constraint("Coincident", 1, 2, 2, 1))
sketch6.addConstraint(Sketcher.Constraint("Coincident", 2, 2, 3, 1))
sketch6.addConstraint(Sketcher.Constraint("Coincident", 3, 2, 0, 1))
sketch6.addConstraint(Sketcher.Constraint("Vertical", 0))
sketch6.addConstraint(Sketcher.Constraint("Horizontal", 1))
sketch6.addConstraint(Sketcher.Constraint("Vertical", 2))
sketch6.addConstraint(Sketcher.Constraint("Horizontal", 3))
sketch6.addConstraint(Sketcher.Constraint("DistanceY", 0, 2, 0, 1, 6.0))
sketch6.addConstraint(Sketcher.Constraint("DistanceX", 1, 1, 1, 2, 2.6))
sketch6.addConstraint(Sketcher.Constraint("DistanceY", 0, 2, -1, 1, 14.0))
sketch6.addConstraint(Sketcher.Constraint("DistanceX", 0, 2, -1, 1, 12.3))
sketch6.setExpression("Constraints[8]", "Params.sketch6_height")
sketch6.setExpression("Constraints[9]", "Params.sketch6_width")
pocket4 = body.newObject("PartDesign::Pocket", "Pocket003")
pocket4.Profile = sketch6
pocket4.Type = "ThroughAll"
pocket4.Midplane = True

doc.recompute()
